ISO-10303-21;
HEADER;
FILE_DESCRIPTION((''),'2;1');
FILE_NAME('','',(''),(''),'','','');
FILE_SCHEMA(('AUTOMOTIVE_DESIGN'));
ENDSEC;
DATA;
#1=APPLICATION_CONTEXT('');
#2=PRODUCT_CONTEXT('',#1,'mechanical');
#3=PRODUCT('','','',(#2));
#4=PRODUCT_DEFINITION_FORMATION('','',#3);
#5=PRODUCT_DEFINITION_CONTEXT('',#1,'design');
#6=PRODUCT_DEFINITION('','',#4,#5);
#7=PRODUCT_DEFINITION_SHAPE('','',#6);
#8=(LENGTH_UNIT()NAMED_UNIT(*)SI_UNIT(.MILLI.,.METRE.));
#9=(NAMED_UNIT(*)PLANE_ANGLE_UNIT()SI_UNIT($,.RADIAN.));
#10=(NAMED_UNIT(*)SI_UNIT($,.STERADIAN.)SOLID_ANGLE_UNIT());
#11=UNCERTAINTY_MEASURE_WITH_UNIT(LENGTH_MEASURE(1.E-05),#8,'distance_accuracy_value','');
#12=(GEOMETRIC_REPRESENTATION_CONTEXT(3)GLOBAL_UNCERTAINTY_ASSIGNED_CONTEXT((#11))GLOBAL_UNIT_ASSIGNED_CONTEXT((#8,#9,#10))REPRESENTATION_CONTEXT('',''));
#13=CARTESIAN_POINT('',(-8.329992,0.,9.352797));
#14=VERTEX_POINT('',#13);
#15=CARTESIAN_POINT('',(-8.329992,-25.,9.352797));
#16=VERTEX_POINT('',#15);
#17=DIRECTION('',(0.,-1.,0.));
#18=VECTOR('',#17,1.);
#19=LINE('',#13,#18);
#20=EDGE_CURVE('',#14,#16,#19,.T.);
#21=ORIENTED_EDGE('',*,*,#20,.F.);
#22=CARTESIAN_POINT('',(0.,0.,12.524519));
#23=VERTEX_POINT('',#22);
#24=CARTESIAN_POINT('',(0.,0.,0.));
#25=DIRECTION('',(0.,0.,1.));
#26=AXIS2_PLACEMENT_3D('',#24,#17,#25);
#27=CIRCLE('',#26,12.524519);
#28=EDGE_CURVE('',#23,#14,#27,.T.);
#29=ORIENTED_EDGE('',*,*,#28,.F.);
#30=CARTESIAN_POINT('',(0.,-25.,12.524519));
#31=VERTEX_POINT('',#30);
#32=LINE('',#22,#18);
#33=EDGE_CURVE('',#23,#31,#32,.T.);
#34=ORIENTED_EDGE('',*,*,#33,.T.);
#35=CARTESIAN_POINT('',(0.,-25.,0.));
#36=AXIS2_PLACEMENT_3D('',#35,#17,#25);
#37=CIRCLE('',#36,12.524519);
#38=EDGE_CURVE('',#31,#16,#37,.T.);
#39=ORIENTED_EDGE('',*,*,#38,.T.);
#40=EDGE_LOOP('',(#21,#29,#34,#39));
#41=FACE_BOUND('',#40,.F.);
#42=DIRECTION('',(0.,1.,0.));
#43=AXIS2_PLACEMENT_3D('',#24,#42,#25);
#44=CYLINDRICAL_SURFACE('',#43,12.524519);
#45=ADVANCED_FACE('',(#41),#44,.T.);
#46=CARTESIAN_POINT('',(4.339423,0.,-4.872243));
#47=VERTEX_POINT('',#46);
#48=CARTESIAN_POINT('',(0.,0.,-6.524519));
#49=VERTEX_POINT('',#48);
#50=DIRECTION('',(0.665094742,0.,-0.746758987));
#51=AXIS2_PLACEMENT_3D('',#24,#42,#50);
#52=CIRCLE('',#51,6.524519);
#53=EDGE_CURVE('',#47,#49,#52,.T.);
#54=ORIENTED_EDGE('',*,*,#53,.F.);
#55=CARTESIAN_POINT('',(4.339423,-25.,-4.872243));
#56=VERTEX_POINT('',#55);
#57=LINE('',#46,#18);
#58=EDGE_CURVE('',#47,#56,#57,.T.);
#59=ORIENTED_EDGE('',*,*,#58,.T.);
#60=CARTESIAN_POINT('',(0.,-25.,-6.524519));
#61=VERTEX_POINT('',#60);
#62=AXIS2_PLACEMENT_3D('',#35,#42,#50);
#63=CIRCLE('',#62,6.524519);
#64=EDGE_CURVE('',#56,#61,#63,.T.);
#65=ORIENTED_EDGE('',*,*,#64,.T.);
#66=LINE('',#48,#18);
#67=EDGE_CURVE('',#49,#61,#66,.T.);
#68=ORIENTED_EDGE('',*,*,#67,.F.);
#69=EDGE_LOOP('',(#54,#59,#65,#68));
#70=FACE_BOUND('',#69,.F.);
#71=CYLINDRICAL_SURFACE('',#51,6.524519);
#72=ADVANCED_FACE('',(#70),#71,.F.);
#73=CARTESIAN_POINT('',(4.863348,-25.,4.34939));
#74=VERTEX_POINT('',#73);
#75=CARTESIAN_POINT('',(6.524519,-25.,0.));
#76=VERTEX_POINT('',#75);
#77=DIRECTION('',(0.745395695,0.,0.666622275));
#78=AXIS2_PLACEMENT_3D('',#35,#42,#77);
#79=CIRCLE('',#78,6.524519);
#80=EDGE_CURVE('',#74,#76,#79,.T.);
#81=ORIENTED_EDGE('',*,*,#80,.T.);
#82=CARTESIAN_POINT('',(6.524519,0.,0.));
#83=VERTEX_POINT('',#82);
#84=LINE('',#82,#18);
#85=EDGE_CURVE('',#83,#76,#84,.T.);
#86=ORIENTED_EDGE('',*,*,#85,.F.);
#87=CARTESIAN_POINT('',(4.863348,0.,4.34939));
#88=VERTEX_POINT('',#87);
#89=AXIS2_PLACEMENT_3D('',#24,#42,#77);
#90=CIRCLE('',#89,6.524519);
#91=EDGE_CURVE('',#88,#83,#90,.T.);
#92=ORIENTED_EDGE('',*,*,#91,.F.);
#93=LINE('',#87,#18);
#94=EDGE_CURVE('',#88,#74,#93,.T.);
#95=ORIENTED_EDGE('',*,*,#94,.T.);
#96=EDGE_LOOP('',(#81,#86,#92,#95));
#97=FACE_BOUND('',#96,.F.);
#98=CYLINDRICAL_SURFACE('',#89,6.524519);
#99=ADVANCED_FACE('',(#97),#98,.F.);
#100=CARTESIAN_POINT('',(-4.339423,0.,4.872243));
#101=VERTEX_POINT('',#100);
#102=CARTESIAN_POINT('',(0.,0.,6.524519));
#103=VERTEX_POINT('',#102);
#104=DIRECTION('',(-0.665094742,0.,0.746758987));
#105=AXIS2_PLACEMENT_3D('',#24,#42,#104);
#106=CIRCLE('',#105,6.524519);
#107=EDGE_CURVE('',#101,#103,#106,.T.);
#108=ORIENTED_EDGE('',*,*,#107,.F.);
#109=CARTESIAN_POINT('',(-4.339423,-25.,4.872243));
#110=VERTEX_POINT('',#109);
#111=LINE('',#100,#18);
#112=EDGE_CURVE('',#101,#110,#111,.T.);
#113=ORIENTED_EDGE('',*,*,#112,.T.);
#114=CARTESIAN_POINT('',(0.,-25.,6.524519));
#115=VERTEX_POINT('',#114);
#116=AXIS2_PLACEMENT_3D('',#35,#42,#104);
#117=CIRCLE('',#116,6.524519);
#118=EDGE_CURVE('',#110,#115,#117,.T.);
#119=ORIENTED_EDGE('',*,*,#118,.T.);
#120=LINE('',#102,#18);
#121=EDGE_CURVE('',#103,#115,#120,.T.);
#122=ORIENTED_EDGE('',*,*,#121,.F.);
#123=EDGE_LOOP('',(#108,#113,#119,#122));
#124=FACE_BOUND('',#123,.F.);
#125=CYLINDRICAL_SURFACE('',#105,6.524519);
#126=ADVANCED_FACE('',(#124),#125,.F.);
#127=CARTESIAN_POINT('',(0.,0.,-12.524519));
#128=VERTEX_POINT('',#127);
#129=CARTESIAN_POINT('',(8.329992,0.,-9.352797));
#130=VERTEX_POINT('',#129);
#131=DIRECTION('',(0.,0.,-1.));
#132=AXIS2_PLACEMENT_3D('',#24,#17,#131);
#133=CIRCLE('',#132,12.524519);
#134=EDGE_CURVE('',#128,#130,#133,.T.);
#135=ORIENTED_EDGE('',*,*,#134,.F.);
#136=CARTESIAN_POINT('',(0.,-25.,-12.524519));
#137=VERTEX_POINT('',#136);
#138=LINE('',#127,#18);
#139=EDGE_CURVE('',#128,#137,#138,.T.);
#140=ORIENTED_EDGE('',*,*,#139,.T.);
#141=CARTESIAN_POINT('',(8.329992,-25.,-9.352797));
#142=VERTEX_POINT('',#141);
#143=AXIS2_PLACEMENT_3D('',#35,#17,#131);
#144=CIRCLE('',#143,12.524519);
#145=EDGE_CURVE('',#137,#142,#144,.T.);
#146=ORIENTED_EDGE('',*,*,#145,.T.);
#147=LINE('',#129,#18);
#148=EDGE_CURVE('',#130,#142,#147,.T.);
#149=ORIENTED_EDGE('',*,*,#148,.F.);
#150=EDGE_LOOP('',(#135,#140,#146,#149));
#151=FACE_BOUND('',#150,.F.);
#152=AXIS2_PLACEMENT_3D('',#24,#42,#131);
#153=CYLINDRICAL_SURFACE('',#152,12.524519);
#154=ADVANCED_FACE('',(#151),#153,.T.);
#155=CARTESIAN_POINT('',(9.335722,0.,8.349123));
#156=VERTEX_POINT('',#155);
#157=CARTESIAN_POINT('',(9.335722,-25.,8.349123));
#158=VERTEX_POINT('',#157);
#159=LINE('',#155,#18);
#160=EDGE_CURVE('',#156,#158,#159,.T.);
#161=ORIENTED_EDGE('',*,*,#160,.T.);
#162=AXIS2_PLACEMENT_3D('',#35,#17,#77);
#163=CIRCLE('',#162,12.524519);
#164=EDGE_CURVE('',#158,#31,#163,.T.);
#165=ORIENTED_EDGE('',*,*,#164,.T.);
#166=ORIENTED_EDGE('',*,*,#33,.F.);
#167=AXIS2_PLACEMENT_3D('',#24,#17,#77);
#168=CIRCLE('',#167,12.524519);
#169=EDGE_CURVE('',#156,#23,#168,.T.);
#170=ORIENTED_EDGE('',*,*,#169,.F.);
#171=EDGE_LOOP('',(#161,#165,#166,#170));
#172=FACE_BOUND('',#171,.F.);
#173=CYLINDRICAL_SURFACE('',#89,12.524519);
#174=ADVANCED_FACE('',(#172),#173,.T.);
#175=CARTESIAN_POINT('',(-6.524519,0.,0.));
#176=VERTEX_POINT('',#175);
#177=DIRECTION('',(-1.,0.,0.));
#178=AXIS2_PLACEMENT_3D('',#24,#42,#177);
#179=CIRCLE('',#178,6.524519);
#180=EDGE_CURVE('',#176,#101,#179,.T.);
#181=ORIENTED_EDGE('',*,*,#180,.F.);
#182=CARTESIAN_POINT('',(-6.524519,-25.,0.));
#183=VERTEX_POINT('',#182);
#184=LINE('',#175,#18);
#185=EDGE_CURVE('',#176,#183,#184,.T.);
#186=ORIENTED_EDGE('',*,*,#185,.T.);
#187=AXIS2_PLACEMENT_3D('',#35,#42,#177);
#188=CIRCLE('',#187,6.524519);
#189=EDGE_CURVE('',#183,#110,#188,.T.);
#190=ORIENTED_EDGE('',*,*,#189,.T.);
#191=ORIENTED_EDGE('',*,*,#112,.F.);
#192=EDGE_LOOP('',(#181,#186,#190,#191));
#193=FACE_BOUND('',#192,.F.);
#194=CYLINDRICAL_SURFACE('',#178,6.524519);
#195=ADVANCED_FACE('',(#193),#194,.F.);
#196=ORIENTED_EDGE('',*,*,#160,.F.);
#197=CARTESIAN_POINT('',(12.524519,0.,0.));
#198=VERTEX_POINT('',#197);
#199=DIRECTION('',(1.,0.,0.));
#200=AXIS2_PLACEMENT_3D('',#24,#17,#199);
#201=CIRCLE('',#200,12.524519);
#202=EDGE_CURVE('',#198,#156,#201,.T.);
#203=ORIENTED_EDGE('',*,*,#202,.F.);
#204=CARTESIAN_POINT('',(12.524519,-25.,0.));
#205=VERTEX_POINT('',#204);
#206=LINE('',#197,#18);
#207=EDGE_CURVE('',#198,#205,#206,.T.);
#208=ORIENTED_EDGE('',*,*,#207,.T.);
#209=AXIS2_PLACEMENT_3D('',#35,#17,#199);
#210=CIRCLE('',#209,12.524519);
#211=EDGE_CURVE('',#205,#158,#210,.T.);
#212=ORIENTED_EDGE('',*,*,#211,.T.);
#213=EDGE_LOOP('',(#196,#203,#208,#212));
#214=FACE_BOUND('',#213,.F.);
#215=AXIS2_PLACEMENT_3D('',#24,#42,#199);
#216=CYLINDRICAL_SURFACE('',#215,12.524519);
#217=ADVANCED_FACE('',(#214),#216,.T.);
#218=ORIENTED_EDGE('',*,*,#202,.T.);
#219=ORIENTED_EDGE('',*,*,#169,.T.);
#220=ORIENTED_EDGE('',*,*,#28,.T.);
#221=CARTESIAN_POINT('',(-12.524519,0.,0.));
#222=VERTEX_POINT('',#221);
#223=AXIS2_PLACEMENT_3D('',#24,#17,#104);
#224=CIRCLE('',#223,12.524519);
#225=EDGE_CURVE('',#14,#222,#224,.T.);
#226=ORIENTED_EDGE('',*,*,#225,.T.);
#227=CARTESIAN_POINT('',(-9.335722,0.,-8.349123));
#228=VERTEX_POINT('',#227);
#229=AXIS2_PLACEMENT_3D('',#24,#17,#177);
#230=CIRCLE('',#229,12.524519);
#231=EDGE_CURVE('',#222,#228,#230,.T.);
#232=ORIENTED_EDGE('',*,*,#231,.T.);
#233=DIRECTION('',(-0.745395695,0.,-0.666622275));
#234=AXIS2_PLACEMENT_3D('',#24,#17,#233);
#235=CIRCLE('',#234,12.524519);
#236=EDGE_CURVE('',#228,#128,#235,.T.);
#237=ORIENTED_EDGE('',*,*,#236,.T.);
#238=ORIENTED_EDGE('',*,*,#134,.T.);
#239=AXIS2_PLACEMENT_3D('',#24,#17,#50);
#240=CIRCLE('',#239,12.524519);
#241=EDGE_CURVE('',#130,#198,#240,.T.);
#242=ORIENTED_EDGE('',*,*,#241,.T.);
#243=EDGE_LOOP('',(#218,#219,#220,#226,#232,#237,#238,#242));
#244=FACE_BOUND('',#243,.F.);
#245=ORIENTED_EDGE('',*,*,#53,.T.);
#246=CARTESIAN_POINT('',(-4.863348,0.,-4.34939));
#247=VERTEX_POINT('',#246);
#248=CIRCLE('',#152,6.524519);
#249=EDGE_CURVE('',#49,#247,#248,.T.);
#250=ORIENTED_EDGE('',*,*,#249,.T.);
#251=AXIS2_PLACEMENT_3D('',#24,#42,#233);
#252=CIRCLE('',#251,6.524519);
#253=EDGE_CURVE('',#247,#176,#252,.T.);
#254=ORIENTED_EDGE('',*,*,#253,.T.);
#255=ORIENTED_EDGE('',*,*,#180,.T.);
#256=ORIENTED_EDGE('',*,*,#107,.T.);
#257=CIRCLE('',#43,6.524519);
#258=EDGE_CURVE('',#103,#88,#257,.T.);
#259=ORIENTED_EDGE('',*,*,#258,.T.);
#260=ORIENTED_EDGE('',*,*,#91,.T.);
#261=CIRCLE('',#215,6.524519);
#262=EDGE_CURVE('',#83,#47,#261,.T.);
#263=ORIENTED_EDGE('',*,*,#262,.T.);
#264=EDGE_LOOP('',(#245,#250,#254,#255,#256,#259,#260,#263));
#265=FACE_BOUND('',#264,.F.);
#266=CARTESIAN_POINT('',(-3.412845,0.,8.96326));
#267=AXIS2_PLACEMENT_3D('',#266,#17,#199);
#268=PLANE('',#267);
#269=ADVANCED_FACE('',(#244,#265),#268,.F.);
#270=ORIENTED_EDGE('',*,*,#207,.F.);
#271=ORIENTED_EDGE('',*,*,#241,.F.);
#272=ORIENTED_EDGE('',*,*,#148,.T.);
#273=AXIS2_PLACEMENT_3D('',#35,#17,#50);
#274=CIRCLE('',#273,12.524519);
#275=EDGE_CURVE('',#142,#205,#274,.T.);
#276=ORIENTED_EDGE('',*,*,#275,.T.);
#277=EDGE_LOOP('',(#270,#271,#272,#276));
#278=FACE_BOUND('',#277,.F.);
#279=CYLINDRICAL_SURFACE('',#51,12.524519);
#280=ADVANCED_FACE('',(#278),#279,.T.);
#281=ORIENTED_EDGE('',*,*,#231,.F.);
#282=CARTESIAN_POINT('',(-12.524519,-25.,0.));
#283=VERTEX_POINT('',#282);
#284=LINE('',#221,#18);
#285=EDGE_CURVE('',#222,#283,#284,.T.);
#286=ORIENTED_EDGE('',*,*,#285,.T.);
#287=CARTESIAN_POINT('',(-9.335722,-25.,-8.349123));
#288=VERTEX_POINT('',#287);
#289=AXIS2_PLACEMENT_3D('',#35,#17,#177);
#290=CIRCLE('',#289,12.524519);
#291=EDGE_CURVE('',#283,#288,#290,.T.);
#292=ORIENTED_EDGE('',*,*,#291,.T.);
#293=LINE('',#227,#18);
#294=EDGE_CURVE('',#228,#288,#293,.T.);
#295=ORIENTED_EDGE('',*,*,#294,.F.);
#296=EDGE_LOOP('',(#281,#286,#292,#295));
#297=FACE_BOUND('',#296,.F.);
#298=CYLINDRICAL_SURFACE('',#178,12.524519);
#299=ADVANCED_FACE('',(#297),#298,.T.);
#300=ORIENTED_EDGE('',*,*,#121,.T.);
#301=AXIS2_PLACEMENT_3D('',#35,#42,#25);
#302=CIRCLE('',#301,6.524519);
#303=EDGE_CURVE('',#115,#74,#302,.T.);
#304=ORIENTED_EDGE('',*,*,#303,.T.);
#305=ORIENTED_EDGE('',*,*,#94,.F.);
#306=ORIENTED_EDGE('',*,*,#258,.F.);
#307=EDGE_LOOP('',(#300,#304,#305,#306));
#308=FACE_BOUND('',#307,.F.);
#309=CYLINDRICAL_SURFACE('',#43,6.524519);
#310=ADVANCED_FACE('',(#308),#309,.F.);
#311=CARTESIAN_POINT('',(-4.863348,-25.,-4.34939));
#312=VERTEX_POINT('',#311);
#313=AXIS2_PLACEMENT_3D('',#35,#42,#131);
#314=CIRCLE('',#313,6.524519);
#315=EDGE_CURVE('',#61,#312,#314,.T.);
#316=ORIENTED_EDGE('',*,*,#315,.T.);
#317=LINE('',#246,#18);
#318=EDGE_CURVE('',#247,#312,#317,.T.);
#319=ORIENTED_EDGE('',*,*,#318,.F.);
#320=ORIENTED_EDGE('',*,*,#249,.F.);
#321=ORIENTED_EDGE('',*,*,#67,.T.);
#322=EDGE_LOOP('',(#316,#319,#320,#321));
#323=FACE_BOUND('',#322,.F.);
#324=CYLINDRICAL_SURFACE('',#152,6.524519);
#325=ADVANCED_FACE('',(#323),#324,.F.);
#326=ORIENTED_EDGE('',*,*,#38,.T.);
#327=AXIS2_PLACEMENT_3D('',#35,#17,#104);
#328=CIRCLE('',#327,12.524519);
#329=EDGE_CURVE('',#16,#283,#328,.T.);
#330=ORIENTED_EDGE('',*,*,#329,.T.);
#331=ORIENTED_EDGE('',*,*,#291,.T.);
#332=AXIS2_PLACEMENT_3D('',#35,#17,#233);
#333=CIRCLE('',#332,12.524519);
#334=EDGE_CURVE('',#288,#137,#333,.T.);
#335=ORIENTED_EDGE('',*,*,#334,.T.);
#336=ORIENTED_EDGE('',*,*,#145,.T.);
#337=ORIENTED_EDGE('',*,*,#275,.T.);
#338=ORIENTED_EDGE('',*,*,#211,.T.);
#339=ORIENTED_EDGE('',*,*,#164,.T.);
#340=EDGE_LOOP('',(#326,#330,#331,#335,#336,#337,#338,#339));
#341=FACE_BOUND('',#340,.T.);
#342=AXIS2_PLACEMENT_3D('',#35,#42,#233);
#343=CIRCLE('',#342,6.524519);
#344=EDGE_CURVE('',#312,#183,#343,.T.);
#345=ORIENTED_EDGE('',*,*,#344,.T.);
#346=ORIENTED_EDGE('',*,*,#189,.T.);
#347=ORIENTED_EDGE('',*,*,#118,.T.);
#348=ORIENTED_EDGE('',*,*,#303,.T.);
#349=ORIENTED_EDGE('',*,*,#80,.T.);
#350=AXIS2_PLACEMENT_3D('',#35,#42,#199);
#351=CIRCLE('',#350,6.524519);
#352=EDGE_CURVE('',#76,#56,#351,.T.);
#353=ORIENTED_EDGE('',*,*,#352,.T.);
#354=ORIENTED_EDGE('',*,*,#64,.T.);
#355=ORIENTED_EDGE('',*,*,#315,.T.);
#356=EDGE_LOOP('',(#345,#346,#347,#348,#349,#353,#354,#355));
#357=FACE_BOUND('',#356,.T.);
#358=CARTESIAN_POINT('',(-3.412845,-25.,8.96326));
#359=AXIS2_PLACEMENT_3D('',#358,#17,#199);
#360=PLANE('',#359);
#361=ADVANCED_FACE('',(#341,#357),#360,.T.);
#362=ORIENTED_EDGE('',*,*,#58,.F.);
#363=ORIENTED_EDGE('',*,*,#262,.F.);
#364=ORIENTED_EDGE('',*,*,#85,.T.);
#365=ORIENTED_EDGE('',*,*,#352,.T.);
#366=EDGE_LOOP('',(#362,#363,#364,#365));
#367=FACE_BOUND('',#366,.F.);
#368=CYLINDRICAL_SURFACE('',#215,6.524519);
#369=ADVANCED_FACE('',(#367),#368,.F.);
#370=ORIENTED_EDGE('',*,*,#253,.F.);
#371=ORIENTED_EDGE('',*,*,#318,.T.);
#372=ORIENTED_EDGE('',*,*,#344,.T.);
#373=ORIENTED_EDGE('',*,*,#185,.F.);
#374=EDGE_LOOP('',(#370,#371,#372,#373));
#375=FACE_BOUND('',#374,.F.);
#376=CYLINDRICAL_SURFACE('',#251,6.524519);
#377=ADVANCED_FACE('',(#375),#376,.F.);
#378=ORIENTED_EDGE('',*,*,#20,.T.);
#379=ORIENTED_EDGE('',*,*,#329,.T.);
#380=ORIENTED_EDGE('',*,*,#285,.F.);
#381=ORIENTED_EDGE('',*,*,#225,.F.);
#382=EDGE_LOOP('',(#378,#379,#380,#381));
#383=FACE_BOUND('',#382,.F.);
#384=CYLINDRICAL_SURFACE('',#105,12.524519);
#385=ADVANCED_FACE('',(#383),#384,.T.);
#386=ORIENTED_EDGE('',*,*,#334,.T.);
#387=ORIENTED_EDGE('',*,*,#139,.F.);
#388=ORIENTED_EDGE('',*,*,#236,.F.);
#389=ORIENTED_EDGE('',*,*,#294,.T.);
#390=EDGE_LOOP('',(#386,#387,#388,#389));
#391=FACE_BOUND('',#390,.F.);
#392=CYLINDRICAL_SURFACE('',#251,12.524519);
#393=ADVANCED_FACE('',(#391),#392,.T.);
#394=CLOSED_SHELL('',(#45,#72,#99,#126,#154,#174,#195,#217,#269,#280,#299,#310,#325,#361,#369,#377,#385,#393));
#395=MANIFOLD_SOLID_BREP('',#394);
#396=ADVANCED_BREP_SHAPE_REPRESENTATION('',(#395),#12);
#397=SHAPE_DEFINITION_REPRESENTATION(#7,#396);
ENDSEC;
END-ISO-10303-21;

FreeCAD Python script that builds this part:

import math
import FreeCAD as App
import Part
import Sketcher

V = App.Vector

doc = App.newDocument("Part")
body = doc.addObject("PartDesign::Body", "Body")

# Sketch on XZ plane
sketch1 = doc.addObject("Sketcher::SketchObject", "Sketch")
body.addObject(sketch1)
sketch1.AttachmentSupport = (doc.XZ_Plane, [""])
sketch1.MapMode = "FlatFace"
sketch1.addGeometry([
    Part.ArcOfCircle(Part.Circle(V(0, 0, 0), V(0, 0, 1), 12.5), math.radians(0), math.radians(42)),  # 0
    Part.ArcOfCircle(Part.Circle(V(0, 0, 0), V(0, 0, 1), 12.5), math.radians(42), math.radians(90)),  # 1
    Part.ArcOfCircle(Part.Circle(V(0, 0, 0), V(0, 0, 1), 12.5), math.radians(90), math.radians(132)),  # 2
    Part.ArcOfCircle(Part.Circle(V(0, 0, 0), V(0, 0, 1), 12.5), math.radians(132), math.radians(180)),  # 3
    Part.ArcOfCircle(Part.Circle(V(0, 0, 0), V(0, 0, 1), 12.5), math.radians(180), math.radians(222)),  # 4
    Part.ArcOfCircle(Part.Circle(V(0, 0, 0), V(0, 0, 1), 12.5), math.radians(-138), math.radians(-90)),  # 5
    Part.ArcOfCircle(Part.Circle(V(0, 0, 0), V(0, 0, 1), 12.5), math.radians(-90), math.radians(-48)),  # 6
    Part.ArcOfCircle(Part.Circle(V(0, 0, 0), V(0, 0, 1), 12.5), math.radians(-48), math.radians(0)),  # 7
    Part.ArcOfCircle(Part.Circle(V(0, 0, 0), V(0, 0, 1), 6.5), math.radians(90), math.radians(132)),  # 8
    Part.ArcOfCircle(Part.Circle(V(0, 0, 0), V(0, 0, 1), 6.5), math.radians(42), math.radians(90)),  # 9
    Part.ArcOfCircle(Part.Circle(V(0, 0, 0), V(0, 0, 1), 6.5), math.radians(0), math.radians(42)),  # 10
    Part.ArcOfCircle(Part.Circle(V(0, 0, 0), V(0, 0, 1), 6.5), math.radians(-48), math.radians(0)),  # 11
    Part.ArcOfCircle(Part.Circle(V(0, 0, 0), V(0, 0, 1), 6.5), math.radians(-90), math.radians(-48)),  # 12
    Part.ArcOfCircle(Part.Circle(V(0, 0, 0), V(0, 0, 1), 6.5), math.radians(-138), math.radians(-90)),  # 13
    Part.ArcOfCircle(Part.Circle(V(0, 0, 0), V(0, 0, 1), 6.5), math.radians(180), math.radians(222)),  # 14
    Part.ArcOfCircle(Part.Circle(V(0, 0, 0), V(0, 0, 1), 6.5), math.radians(132), math.radians(180)),  # 15
], False)
sketch1.addConstraint([
    Sketcher.Constraint("Tangent", 0, 2, 1, 1),
    Sketcher.Constraint("Tangent", 1, 2, 2, 1),
    Sketcher.Constraint("Tangent", 2, 2, 3, 1),
    Sketcher.Constraint("Tangent", 3, 2, 4, 1),
    Sketcher.Constraint("Tangent", 4, 2, 5, 1),
    Sketcher.Constraint("Tangent", 5, 2, 6, 1),
    Sketcher.Constraint("Tangent", 6, 2, 7, 1),
    Sketcher.Constraint("Tangent", 7, 2, 0, 1),
    Sketcher.Constraint("Tangent", 8, 1, 9, 2),
    Sketcher.Constraint("Tangent", 9, 1, 10, 2),
    Sketcher.Constraint("Tangent", 10, 1, 11, 2),
    Sketcher.Constraint("Tangent", 11, 1, 12, 2),
    Sketcher.Constraint("Tangent", 12, 1, 13, 2),
    Sketcher.Constraint("Tangent", 13, 1, 14, 2),
    Sketcher.Constraint("Tangent", 14, 1, 15, 2),
    Sketcher.Constraint("Tangent", 15, 1, 8, 2),
    Sketcher.Constraint("Coincident", 0, 3, -1, 1),
    Sketcher.Constraint("Coincident", 2, 3, -1, 1),
    Sketcher.Constraint("Coincident", 4, 3, -1, 1),
    Sketcher.Constraint("Coincident", 8, 3, -1, 1),
    Sketcher.Constraint("Coincident", 10, 3, -1, 1),
    Sketcher.Constraint("Coincident", 12, 3, -1, 1),
    Sketcher.Constraint("Equal", 4, 5),
    Sketcher.Constraint("Equal", 12, 13),
    Sketcher.Constraint("PointOnObject", 1, 2, -2),
    Sketcher.Constraint("PointOnObject", 3, 2, -1),
    Sketcher.Constraint("PointOnObject", 5, 2, -2),
    Sketcher.Constraint("PointOnObject", 7, 2, -1),
    Sketcher.Constraint("PointOnObject", 8, 1, -2),
    Sketcher.Constraint("PointOnObject", 10, 1, -1),
    Sketcher.Constraint("PointOnObject", 12, 1, -2),
    Sketcher.Constraint("PointOnObject", 14, 1, -1),
    Sketcher.Constraint("DistanceY", 8, 1, 1, 2, 6.0),
    Sketcher.Constraint("Radius", 0, 12.524519),
    Sketcher.Constraint("DistanceX", 2, 2, -1, 1, 8.329992),
    Sketcher.Constraint("DistanceX", -1, 1, 6, 2, 8.329992),
    Sketcher.Constraint("DistanceX", -1, 1, 9, 1, 4.863348),
    Sketcher.Constraint("DistanceX", 13, 1, -1, 1, 4.863348),
    Sketcher.Constraint("DistanceX", 11, 1, 6, 2, 3.990568),
    Sketcher.Constraint("DistanceX", 2, 2, 15, 1, 3.990568),
    Sketcher.Constraint("DistanceX", -1, 1, 0, 2, 9.335722),
    Sketcher.Constraint("DistanceX", 4, 2, -1, 1, 9.335722),
])
pad1 = doc.addObject("PartDesign::Pad", "Pad")
body.addObject(pad1)
pad1.Profile = sketch1
pad1.Length = 25

doc.recompute()
